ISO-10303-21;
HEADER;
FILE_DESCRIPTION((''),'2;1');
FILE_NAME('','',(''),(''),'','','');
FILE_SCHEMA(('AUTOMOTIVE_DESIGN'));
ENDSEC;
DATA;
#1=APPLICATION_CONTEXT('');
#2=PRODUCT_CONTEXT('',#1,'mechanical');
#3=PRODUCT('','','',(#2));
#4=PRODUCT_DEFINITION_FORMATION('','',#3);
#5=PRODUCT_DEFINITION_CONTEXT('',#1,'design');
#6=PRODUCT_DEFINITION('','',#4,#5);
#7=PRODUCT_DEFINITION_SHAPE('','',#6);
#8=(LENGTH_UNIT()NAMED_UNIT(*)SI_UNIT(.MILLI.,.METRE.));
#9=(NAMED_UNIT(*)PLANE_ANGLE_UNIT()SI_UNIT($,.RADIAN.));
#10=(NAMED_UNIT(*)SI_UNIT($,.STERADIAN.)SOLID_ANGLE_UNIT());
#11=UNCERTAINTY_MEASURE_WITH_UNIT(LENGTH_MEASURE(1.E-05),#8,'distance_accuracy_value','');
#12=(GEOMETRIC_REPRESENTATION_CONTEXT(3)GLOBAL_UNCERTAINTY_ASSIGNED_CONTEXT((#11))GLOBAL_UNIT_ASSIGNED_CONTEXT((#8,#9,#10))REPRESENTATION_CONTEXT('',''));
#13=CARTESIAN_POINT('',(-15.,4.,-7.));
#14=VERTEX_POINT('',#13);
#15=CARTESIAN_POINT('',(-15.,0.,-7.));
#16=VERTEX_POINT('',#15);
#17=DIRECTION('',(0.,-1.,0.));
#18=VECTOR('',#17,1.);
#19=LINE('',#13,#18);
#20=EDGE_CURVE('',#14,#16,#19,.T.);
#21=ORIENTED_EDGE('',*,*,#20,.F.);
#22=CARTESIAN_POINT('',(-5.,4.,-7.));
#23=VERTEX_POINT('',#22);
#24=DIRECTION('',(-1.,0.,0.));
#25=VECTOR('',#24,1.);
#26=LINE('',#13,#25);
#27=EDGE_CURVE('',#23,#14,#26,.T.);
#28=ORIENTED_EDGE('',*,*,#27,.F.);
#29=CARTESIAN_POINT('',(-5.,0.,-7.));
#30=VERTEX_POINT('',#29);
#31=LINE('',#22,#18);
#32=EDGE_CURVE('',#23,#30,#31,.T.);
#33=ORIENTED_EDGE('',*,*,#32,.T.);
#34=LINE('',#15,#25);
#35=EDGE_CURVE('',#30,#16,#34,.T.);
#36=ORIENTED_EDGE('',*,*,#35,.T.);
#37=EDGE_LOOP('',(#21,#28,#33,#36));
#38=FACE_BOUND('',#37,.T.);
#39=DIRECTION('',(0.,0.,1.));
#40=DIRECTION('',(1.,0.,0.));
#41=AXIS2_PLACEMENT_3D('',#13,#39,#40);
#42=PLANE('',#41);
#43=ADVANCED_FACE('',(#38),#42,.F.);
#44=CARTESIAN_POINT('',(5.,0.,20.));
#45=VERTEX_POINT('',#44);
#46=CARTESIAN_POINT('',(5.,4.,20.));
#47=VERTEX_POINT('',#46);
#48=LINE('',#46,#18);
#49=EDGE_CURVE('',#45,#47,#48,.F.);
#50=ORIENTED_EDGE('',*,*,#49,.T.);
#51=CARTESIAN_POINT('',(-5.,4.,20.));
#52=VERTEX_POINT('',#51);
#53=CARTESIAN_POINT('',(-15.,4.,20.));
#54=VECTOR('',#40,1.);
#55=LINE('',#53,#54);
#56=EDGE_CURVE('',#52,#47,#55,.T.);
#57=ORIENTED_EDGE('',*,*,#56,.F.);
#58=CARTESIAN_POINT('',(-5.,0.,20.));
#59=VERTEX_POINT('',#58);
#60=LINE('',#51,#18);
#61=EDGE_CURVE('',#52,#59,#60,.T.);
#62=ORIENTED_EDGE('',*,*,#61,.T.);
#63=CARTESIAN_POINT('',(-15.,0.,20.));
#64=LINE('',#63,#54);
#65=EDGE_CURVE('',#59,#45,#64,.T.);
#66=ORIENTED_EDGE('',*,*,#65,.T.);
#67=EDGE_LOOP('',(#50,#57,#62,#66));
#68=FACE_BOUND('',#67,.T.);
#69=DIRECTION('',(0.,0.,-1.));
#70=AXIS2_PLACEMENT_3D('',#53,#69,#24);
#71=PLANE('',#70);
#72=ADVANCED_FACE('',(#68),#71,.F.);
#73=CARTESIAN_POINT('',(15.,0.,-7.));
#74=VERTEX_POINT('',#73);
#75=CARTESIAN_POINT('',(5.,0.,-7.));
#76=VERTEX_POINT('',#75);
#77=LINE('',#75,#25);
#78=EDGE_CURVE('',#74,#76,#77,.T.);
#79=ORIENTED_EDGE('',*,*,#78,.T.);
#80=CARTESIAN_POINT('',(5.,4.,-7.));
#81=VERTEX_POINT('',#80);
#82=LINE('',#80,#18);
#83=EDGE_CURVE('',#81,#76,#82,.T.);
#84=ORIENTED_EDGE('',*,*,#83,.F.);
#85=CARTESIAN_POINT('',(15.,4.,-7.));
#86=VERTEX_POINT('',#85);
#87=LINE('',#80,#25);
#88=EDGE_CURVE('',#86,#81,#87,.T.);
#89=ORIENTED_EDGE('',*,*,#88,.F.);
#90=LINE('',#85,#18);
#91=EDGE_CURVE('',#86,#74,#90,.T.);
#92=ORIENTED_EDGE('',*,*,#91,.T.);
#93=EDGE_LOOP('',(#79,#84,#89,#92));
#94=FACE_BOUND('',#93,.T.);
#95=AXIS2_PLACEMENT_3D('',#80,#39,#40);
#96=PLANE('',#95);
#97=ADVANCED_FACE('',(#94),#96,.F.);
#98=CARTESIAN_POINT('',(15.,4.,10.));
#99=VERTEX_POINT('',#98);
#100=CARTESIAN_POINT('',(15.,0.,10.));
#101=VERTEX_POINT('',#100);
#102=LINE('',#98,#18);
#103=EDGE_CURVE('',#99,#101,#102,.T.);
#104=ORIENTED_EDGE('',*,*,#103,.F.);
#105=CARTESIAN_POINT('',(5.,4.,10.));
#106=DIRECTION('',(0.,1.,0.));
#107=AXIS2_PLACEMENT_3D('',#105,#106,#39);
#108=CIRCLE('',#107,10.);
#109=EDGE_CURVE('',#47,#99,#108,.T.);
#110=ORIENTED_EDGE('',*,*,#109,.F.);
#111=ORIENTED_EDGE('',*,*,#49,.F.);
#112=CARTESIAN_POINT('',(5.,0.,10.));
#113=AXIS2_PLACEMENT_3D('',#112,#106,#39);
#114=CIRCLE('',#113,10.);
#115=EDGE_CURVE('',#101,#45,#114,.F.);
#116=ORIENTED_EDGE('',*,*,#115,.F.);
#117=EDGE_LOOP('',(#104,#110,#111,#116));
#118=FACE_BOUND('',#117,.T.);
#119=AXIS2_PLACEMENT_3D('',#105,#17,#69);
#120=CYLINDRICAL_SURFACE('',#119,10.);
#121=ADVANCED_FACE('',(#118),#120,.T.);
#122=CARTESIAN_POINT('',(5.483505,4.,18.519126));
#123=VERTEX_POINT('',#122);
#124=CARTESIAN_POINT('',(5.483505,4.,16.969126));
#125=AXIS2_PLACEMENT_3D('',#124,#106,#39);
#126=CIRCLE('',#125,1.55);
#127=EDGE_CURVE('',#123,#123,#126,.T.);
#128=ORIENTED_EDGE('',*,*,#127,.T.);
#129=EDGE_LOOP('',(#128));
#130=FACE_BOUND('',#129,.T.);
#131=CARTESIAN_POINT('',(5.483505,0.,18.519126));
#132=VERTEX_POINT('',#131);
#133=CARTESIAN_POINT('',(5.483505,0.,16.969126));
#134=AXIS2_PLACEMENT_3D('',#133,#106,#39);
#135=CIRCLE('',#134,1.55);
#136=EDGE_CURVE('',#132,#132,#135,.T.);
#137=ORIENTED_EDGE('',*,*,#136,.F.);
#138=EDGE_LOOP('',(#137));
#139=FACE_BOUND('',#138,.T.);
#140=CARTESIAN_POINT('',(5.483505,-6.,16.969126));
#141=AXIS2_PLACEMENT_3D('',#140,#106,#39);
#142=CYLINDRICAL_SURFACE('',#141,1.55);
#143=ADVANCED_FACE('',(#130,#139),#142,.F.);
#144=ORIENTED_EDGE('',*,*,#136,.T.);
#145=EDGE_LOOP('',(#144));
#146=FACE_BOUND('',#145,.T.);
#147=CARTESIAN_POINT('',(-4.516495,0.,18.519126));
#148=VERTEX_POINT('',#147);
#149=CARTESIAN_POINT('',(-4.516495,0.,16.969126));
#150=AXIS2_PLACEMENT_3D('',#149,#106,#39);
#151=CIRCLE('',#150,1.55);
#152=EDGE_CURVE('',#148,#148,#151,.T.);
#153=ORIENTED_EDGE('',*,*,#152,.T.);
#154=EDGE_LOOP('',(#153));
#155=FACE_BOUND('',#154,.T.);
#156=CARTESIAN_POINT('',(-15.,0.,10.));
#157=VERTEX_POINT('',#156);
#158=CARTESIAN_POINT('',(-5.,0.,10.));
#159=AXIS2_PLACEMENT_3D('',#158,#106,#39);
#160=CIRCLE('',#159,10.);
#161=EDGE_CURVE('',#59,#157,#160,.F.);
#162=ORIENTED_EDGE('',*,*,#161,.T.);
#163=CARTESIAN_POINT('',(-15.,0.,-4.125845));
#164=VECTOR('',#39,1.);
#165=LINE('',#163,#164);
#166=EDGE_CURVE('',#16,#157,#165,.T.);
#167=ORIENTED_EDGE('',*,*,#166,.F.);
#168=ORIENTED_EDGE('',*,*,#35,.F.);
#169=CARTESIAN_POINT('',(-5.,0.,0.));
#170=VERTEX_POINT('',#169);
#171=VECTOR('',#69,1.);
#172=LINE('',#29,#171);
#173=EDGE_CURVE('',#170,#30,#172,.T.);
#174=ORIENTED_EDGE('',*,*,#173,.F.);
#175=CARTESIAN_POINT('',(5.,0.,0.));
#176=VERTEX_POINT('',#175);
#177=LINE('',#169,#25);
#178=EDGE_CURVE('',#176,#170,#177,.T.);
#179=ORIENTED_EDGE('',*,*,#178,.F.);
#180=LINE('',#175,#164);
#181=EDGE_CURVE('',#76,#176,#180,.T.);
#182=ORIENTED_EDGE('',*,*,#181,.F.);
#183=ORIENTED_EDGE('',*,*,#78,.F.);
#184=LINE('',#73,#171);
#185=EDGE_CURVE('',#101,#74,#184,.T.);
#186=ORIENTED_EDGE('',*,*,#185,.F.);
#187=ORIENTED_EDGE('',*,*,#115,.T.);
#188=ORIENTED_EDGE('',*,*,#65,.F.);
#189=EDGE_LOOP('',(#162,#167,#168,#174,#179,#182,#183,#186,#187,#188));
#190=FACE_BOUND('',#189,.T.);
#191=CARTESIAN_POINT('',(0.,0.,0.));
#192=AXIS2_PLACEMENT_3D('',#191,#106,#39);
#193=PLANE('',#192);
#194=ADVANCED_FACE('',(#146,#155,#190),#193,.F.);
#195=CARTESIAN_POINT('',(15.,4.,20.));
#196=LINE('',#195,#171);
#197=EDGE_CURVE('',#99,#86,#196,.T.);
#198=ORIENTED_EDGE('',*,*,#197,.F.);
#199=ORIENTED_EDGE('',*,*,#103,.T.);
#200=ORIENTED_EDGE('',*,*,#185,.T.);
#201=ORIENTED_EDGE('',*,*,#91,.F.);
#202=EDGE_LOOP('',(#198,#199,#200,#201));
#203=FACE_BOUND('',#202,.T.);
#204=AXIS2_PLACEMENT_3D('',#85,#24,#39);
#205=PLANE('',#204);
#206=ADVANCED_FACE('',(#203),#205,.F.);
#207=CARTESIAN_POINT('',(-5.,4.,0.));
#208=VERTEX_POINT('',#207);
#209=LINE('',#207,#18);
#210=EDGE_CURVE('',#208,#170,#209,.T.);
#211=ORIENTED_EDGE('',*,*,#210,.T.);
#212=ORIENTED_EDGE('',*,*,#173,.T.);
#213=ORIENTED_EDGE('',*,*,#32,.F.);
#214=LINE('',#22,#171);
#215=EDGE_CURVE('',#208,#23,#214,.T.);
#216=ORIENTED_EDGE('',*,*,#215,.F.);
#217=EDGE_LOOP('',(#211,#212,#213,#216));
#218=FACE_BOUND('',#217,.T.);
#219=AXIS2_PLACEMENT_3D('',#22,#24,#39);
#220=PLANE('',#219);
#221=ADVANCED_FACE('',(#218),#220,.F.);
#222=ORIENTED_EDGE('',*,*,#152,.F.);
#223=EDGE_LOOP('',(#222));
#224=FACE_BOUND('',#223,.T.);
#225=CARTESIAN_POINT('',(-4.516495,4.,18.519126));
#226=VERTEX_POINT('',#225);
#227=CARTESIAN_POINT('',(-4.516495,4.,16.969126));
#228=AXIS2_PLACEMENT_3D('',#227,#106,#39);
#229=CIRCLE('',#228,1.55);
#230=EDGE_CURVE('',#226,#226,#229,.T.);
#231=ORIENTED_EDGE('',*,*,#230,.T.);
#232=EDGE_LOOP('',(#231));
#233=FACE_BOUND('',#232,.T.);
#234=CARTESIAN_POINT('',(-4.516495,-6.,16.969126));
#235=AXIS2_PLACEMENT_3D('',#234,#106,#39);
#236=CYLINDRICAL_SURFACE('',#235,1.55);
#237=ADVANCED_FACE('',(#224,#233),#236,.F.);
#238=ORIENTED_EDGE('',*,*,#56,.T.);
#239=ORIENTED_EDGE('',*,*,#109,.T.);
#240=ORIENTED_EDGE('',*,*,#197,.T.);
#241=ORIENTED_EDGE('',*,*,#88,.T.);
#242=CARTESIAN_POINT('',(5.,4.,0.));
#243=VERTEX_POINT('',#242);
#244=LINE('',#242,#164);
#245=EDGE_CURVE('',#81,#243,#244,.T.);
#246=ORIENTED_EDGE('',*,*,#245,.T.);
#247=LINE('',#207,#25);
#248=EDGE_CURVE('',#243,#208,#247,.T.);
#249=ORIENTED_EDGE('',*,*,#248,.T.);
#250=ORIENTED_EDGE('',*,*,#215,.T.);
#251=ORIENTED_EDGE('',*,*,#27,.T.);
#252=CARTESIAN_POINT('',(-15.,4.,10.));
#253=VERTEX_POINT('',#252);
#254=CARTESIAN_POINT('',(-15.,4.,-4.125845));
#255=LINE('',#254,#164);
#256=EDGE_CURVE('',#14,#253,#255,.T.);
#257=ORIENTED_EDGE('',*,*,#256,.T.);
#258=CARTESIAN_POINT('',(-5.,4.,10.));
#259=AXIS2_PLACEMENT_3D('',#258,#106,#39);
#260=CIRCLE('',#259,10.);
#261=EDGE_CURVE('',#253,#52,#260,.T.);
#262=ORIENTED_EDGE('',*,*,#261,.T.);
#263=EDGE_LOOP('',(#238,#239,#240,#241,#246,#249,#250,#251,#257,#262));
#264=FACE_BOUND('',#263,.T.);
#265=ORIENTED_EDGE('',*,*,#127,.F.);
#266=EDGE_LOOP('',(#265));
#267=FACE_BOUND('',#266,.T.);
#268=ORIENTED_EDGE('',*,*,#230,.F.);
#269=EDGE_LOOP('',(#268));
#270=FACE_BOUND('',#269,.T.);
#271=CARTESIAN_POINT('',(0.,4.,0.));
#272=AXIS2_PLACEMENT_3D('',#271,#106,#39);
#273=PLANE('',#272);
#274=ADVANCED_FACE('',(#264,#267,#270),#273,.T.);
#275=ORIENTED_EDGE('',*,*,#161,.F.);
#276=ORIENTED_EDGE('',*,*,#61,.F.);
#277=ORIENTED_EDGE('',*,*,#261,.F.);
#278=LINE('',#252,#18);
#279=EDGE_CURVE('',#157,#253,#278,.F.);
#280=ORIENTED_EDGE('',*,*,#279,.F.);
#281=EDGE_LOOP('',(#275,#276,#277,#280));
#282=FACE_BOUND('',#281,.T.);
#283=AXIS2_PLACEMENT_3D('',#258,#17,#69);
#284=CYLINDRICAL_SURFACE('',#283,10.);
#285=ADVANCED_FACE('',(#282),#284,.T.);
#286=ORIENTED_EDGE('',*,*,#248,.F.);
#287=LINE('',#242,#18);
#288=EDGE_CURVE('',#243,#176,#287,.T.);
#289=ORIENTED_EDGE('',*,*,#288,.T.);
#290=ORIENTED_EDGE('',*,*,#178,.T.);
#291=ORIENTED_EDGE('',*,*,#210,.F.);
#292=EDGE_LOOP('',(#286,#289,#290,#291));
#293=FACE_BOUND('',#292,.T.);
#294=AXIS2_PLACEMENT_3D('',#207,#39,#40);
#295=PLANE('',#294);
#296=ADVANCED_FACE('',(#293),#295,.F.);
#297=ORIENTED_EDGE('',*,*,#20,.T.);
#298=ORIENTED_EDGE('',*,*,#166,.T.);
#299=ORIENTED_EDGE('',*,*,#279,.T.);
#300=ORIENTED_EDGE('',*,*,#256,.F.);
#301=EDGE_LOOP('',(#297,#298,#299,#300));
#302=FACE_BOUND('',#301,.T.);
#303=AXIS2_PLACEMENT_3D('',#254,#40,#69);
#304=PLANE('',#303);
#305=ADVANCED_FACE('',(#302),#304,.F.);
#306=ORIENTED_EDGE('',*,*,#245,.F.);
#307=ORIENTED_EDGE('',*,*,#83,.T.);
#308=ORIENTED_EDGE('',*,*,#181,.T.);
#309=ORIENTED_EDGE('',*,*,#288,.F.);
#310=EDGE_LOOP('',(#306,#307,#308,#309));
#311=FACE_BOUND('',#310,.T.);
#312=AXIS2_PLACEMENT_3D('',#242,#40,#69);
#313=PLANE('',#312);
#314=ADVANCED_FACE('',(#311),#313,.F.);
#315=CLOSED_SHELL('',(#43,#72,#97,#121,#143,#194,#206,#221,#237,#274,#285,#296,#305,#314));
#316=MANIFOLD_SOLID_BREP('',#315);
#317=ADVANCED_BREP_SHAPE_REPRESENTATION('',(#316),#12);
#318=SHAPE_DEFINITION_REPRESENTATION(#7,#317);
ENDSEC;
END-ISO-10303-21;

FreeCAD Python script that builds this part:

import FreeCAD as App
import Part
import Sketcher
from FreeCAD import Vector
Q = App.Units.Quantity


def edges_at(feature, points):
    """Names of the edges that pass closest to the given points."""
    edges = feature.Shape.Edges
    near = lambda p: min(range(len(edges)), key=lambda i: edges[i].distToShape(Part.Vertex(*p))[0])
    return sorted({f"Edge{near(p) + 1}" for p in points})


def add_polygon(sketch, points):
    """Adds a closed chain of lines whose ends are joined by coincident constraints."""
    first, n = sketch.GeometryCount, len(points)
    for a, b in zip(points, points[1:] + points[:1]):
        sketch.addGeometry(Part.LineSegment(App.Vector(*a, 0), App.Vector(*b, 0)), False)
    for i in range(n):
        sketch.addConstraint(Sketcher.Constraint("Coincident", first + i, 2, first + (i + 1) % n, 1))

doc = App.newDocument("Part")
body = doc.addObject("PartDesign::Body", "Body")

sketch1 = body.newObject("Sketcher::SketchObject", "Sketch")
sketch1.AttachmentSupport = (doc.getObject("XZ_Plane"), [""])
sketch1.MapMode = "FlatFace"
add_polygon(sketch1, [(-15, -7), (-15, 20), (15, 20), (15, -7), (5, -7), (5, 0), (-5, 0), (-5, -7)])
sketch1.addConstraint([
    Sketcher.Constraint("Vertical", 0),
    Sketcher.Constraint("Horizontal", 1),
    Sketcher.Constraint("Vertical", 2),
    Sketcher.Constraint("Horizontal", 3),
    Sketcher.Constraint("Vertical", 4),
    Sketcher.Constraint("Horizontal", 5),
    Sketcher.Constraint("Vertical", 6),
    Sketcher.Constraint("Horizontal", 7),
    Sketcher.Constraint("Symmetric", 4, 2, 5, 2, -1, 1),
    Sketcher.Constraint("Symmetric", 2, 2, 7, 2, -2),
    Sketcher.Constraint("Equal", 3, 5),
    Sketcher.Constraint("DistanceX", 1, 1, 1, 2, Q("30 mm")),
    Sketcher.Constraint("DistanceY", 0, 1, 0, 2, Q("27 mm")),
    Sketcher.Constraint("DistanceY", 4, 1, 4, 2, Q("7 mm")),
])
pad1 = body.newObject("PartDesign::Pad", "Pad")
pad1.Profile = sketch1
pad1.Length = 4
pad1.Reversed = True
doc.recompute()

fillet = body.newObject("PartDesign::Fillet", "Fillet")
fillet.Base = (pad1, edges_at(pad1, [(15, 2, 20), (-15, 2, 20)]))
fillet.Radius = 10

sketch2 = body.newObject("Sketcher::SketchObject", "Sketch001")
sketch2.AttachmentSupport = (doc.getObject("XZ_Plane"), [""])
sketch2.MapMode = "FlatFace"
sketch2.AttachmentOffset = App.Placement(Vector(0, 0, -4), App.Rotation())
sketch2.addGeometry([
    Part.Circle(Vector(5.5, 17, 0), Vector(0, 0, 1), 1.6),
    Part.Circle(Vector(-4.5, 17, 0), Vector(0, 0, 1), 1.6),
], False)
sketch2.addConstraint([
    Sketcher.Constraint("Equal", 0, 1),
    Sketcher.Constraint("Horizontal", 0, 3, 1, 3),
    Sketcher.Constraint("Diameter", 0, Q("3.1 mm")),
    Sketcher.Constraint("DistanceX", 1, 3, 0, 3, Q("10 mm")),
    Sketcher.Constraint("DistanceX", -1, 1, 0, 3, Q("5.483505 mm")),
    Sketcher.Constraint("DistanceY", -1, 1, 0, 3, Q("16.969126 mm")),
])
pocket1 = body.newObject("PartDesign::Pocket", "Pocket")
pocket1.Profile = sketch2
pocket1.Length = 10
pocket1.Reversed = True

doc.recompute()
